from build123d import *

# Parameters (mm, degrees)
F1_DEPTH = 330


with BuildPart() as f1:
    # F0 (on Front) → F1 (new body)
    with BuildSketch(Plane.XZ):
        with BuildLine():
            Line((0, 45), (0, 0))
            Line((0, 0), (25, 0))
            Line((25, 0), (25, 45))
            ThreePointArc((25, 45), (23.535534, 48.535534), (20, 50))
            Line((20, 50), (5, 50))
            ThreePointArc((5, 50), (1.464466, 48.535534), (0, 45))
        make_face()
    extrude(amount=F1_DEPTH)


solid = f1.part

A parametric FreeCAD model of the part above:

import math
import FreeCAD as App
import Part
import Sketcher
from FreeCAD import Vector
Q = App.Units.Quantity

doc = App.newDocument("Part")
params = doc.addObject("Spreadsheet::Sheet", "Params")
for row, (alias, value) in enumerate([
    ("sketch1_radius", "5 mm"),
    ("sketch1_width", "25 mm"),
    ("sketch1_height", "45 mm"),
    ("pad1_length", "330 mm"),
], start=1):
    params.set(f"A{row}", alias)
    params.set(f"B{row}", "=" + value)
    params.setAlias(f"B{row}", alias)

body = doc.addObject("PartDesign::Body", "Body")

sketch1 = body.newObject("Sketcher::SketchObject", "Sketch")
sketch1.AttachmentSupport = (doc.getObject("XZ_Plane"), [""])
sketch1.MapMode = "FlatFace"
sketch1.addGeometry([
    Part.LineSegment(Vector(0, 45, 0), Vector(0, 0, 0)),
    Part.LineSegment(Vector(0, 0, 0), Vector(25, 0, 0)),
    Part.LineSegment(Vector(25, 0, 0), Vector(25, 45, 0)),
    Part.ArcOfCircle(Part.Circle(Vector(20, 45, 0), Vector(0, 0, 1), 5), math.radians(0), math.radians(90)),
    Part.LineSegment(Vector(20, 50, 0), Vector(5, 50, 0)),
    Part.ArcOfCircle(Part.Circle(Vector(5, 45, 0), Vector(0, 0, 1), 5), math.radians(90), math.radians(180)),
], False)
sketch1.addConstraint([
    Sketcher.Constraint("Coincident", 0, 2, 1, 1),
    Sketcher.Constraint("Coincident", 1, 2, 2, 1),
    Sketcher.Constraint("Tangent", 2, 2, 3, 1),
    Sketcher.Constraint("Tangent", 3, 2, 4, 1),
    Sketcher.Constraint("Tangent", 4, 2, 5, 1),
    Sketcher.Constraint("Tangent", 5, 2, 0, 1),
    Sketcher.Constraint("Vertical", 0),
    Sketcher.Constraint("Horizontal", 1),
    Sketcher.Constraint("Vertical", 2),
    Sketcher.Constraint("Horizontal", 4),
    Sketcher.Constraint("Coincident", 0, 2, -1, 1),
    Sketcher.Constraint("Equal", 3, 5),
    Sketcher.Constraint("Radius", 3, Q("5 mm")),
    Sketcher.Constraint("DistanceX", 1, 1, 1, 2, Q("25 mm")),
    Sketcher.Constraint("DistanceY", 0, 2, 0, 1, Q("45 mm")),
])
sketch1.setExpression("Constraints[12]", "Params.sketch1_radius")
sketch1.setExpression("Constraints[13]", "Params.sketch1_width")
sketch1.setExpression("Constraints[14]", "Params.sketch1_height")
pad1 = body.newObject("PartDesign::Pad", "Pad")
pad1.Profile = sketch1
pad1.setExpression("Length", "Params.pad1_length")

doc.recompute()
